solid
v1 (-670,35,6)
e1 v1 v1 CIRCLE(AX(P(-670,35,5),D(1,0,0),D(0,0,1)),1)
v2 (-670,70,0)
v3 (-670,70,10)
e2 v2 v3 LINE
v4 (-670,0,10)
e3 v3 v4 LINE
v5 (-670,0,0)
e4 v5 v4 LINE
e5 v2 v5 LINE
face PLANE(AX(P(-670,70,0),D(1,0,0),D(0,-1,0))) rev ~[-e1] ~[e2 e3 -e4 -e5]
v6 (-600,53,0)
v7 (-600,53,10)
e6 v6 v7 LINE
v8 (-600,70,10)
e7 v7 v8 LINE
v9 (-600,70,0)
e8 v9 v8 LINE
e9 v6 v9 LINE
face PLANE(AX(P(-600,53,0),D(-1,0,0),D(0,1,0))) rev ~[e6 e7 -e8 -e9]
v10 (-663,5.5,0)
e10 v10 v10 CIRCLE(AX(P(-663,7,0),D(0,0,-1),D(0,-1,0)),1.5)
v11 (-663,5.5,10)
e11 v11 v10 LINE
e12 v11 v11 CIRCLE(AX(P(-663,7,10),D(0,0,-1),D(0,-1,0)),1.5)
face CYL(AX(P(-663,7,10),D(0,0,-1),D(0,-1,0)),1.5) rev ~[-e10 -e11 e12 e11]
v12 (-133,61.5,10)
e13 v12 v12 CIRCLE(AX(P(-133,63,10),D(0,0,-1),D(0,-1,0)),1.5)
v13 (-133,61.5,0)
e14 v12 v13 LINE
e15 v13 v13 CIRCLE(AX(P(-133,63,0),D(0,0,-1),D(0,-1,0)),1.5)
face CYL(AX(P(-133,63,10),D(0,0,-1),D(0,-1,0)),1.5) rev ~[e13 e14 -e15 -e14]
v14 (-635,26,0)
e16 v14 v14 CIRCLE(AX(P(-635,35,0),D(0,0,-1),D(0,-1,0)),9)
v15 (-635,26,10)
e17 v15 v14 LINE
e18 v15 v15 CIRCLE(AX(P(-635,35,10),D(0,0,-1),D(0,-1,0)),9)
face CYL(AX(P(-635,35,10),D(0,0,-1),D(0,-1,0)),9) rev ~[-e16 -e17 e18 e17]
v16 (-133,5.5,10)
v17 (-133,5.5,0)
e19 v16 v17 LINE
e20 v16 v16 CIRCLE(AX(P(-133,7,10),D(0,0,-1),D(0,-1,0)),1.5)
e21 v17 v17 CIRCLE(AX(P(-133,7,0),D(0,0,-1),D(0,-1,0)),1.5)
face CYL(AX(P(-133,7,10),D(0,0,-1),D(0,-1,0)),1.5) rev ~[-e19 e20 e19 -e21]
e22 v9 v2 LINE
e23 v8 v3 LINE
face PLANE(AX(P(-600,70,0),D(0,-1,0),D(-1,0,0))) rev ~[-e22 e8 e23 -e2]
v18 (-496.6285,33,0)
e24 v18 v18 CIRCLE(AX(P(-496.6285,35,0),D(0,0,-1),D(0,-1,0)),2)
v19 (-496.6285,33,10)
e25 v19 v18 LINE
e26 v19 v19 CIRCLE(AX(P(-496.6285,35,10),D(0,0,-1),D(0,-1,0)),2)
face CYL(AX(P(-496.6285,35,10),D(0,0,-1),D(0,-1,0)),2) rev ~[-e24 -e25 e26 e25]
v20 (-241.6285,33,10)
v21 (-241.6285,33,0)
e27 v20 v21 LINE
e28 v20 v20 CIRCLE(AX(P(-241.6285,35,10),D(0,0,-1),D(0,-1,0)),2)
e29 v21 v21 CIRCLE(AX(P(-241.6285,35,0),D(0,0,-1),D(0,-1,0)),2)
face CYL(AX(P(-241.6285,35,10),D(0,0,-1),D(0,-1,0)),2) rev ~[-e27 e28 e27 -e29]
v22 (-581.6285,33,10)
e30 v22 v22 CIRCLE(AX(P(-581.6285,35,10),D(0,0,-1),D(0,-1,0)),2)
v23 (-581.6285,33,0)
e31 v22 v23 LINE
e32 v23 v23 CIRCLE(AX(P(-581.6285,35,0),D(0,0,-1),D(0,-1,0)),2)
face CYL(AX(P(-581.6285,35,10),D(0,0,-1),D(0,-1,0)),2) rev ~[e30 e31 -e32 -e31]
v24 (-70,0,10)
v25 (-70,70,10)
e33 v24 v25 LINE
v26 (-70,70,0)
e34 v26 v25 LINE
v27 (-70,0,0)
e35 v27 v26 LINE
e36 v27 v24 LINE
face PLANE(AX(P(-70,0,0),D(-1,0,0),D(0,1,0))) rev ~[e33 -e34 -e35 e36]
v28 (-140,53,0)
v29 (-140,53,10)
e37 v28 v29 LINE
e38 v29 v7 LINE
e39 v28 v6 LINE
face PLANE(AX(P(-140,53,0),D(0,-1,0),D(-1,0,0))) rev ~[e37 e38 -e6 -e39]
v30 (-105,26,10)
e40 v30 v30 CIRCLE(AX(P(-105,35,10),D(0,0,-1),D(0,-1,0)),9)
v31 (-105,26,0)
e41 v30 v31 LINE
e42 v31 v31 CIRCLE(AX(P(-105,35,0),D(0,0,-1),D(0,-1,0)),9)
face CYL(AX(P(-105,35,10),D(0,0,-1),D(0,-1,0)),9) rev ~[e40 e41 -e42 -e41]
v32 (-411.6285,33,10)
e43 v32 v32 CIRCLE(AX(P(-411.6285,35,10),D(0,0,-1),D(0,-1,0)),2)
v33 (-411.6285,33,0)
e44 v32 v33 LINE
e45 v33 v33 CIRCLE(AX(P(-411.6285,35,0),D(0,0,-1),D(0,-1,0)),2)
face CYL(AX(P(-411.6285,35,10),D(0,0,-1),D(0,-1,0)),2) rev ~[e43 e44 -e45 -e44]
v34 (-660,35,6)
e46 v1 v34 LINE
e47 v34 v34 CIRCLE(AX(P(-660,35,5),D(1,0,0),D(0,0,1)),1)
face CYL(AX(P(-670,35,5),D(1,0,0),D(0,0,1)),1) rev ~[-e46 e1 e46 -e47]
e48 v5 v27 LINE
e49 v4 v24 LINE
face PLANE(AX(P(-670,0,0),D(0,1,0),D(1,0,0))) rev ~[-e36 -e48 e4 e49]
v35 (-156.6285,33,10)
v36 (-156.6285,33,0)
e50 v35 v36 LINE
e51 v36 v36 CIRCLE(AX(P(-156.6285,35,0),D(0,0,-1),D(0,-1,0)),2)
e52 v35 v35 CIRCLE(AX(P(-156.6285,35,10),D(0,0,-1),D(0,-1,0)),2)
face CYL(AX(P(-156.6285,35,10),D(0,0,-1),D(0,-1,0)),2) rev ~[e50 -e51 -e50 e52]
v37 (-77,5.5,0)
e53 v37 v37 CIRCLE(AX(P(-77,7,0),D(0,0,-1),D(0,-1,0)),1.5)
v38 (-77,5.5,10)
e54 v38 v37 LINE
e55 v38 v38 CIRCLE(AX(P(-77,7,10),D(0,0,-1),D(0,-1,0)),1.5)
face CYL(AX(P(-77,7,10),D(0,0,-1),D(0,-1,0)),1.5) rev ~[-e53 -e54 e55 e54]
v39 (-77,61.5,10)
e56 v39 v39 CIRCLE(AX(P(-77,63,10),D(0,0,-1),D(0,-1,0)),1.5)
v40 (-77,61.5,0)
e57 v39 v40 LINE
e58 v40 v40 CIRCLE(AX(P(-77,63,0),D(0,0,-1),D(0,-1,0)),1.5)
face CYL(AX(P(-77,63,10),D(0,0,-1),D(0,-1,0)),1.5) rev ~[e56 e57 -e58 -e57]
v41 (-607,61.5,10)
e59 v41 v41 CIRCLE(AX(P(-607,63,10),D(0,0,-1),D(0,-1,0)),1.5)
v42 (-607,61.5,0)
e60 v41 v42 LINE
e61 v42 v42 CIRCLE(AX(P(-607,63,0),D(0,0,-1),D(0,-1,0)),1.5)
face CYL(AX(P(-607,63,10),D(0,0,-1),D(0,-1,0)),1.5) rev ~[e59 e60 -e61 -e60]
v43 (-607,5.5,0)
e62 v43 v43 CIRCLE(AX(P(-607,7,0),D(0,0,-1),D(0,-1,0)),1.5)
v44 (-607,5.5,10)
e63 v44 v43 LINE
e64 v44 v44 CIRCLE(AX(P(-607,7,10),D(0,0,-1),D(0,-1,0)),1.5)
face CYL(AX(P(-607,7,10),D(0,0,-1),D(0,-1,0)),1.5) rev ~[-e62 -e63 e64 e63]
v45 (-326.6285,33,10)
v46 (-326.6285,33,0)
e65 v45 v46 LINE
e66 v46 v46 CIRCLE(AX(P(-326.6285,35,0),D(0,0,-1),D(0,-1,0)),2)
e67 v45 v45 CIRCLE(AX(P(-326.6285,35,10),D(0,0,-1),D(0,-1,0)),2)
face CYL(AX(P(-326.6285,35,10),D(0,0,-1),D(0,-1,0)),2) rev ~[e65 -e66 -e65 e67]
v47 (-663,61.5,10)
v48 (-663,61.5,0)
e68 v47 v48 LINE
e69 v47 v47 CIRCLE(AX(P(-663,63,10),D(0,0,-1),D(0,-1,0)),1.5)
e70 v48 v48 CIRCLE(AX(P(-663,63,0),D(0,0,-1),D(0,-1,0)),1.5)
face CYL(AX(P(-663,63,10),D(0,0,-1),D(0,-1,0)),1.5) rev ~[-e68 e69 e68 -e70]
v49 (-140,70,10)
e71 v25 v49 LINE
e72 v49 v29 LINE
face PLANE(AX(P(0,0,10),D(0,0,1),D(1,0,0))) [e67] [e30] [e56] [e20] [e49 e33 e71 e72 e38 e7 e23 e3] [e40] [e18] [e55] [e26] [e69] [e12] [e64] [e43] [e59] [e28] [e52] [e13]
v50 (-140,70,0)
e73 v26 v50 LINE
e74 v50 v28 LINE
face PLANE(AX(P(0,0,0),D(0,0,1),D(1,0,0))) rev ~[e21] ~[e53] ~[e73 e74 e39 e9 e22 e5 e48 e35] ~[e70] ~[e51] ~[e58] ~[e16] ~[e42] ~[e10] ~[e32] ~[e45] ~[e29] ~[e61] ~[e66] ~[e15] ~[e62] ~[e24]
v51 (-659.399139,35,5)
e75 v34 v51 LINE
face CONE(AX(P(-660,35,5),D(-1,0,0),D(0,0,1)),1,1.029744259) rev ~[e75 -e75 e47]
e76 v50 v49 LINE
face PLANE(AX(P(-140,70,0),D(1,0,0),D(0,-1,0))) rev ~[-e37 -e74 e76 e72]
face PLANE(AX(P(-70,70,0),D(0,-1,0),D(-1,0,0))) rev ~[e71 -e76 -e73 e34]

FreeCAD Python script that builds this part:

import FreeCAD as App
import Part
import Sketcher
Q = App.Units.Quantity


def add_polygon(sketch, points):
    """Adds a closed chain of lines whose ends are joined by coincident constraints."""
    first, n = sketch.GeometryCount, len(points)
    for a, b in zip(points, points[1:] + points[:1]):
        sketch.addGeometry(Part.LineSegment(App.Vector(*a, 0), App.Vector(*b, 0)), False)
    for i in range(n):
        sketch.addConstraint(Sketcher.Constraint("Coincident", first + i, 2, first + (i + 1) % n, 1))

doc = App.newDocument("Part")
body = doc.addObject("PartDesign::Body", "Body")

sketch1 = body.newObject("Sketcher::SketchObject", "Sketch")
sketch1.AttachmentSupport = (doc.getObject("XY_Plane"), [""])
sketch1.MapMode = "FlatFace"
add_polygon(sketch1, [(-670, 0), (-70, 0), (-70, 70), (-140, 70), (-140, 53), (-600, 53), (-600, 70), (-670, 70)])
sketch1.addConstraint([
    Sketcher.Constraint("Horizontal", 0),
    Sketcher.Constraint("Vertical", 1),
    Sketcher.Constraint("Horizontal", 2),
    Sketcher.Constraint("Vertical", 3),
    Sketcher.Constraint("Horizontal", 4),
    Sketcher.Constraint("Vertical", 5),
    Sketcher.Constraint("Horizontal", 6),
    Sketcher.Constraint("Vertical", 7),
    Sketcher.Constraint("PointOnObject", 0, 2, -1),
    Sketcher.Constraint("Horizontal", 2, 2, 5, 2),
    Sketcher.Constraint("Equal", 2, 6),
    Sketcher.Constraint("Equal", 6, 1),
    Sketcher.Constraint("DistanceX", 0, 1, 0, 2, Q("600 mm")),
    Sketcher.Constraint("DistanceX", 2, 2, 2, 1, Q("70 mm")),
    Sketcher.Constraint("DistanceY", 3, 2, 3, 1, Q("17 mm")),
    Sketcher.Constraint("DistanceX", 0, 2, -1, 1, Q("70 mm")),
])
pad1 = body.newObject("PartDesign::Pad", "Pad")
pad1.Profile = sketch1
pad1.Length = 10

sketch2 = body.newObject("Sketcher::SketchObject", "Sketch001")
sketch2.AttachmentSupport = (doc.getObject("XY_Plane"), [""])
sketch2.MapMode = "FlatFace"
sketch2.AttachmentOffset = App.Placement(App.Vector(0, 0, 10), App.Rotation())
sketch2.addGeometry([
    Part.Circle(App.Vector(-105, 35, 0), App.Vector(0, 0, 1), 9),
    Part.Circle(App.Vector(-635, 35, 0), App.Vector(0, 0, 1), 9),
], False)
sketch2.addConstraint([
    Sketcher.Constraint("Equal", 0, 1),
    Sketcher.Constraint("Horizontal", 0, 3, 1, 3),
    Sketcher.Constraint("Diameter", 0, Q("18 mm")),
    Sketcher.Constraint("DistanceX", 0, 3, -1, 1, Q("105 mm")),
    Sketcher.Constraint("DistanceY", -1, 1, 0, 3, Q("35 mm")),
    Sketcher.Constraint("DistanceX", 1, 3, -1, 1, Q("635 mm")),
])
doc.recompute()
hole = body.newObject("PartDesign::Hole", "Hole")
hole.Profile = sketch2
hole.ThreadType = "None"
hole.Diameter = 18
hole.DepthType = "ThroughAll"

sketch3 = body.newObject("Sketcher::SketchObject", "Sketch002")
sketch3.AttachmentSupport = (doc.getObject("XY_Plane"), [""])
sketch3.MapMode = "FlatFace"
sketch3.AttachmentOffset = App.Placement(App.Vector(0, 0, 10), App.Rotation())
sketch3.addGeometry([
    Part.Circle(App.Vector(-77, 63, 0), App.Vector(0, 0, 1), 1.5),
    Part.Circle(App.Vector(-77, 7, 0), App.Vector(0, 0, 1), 1.5),
    Part.Circle(App.Vector(-133, 63, 0), App.Vector(0, 0, 1), 1.5),
    Part.Circle(App.Vector(7, -7, 0), App.Vector(0, 0, 1), 1.5),
], False)
sketch3.addConstraint([
    Sketcher.Constraint("Equal", 0, 1),
    Sketcher.Constraint("Equal", 1, 2),
    Sketcher.Constraint("Equal", 2, 3),
    Sketcher.Constraint("Horizontal", 0, 3, 2, 3),
    Sketcher.Constraint("Vertical", 0, 3, 1, 3),
    Sketcher.Constraint("Diameter", 0, Q("3 mm")),
    Sketcher.Constraint("DistanceX", 0, 3, -1, 1, Q("77 mm")),
    Sketcher.Constraint("DistanceY", -1, 1, 0, 3, Q("63 mm")),
    Sketcher.Constraint("DistanceY", -1, 1, 1, 3, Q("7 mm")),
    Sketcher.Constraint("DistanceX", 2, 3, -1, 1, Q("133 mm")),
    Sketcher.Constraint("DistanceX", -1, 1, 3, 3, Q("7 mm")),
    Sketcher.Constraint("DistanceY", 3, 3, -1, 1, Q("7 mm")),
])
doc.recompute()
hole2 = body.newObject("PartDesign::Hole", "Hole001")
hole2.Profile = sketch3
hole2.ThreadType = "None"
hole2.Diameter = 3
hole2.DepthType = "ThroughAll"

sketch4 = body.newObject("Sketcher::SketchObject", "Sketch003")
sketch4.AttachmentSupport = (doc.getObject("XY_Plane"), [""])
sketch4.MapMode = "FlatFace"
sketch4.AttachmentOffset = App.Placement(App.Vector(0, 0, 10), App.Rotation())
sketch4.addGeometry(Part.Circle(App.Vector(-133, 7, 0), App.Vector(0, 0, 1), 1.5), False)
sketch4.addConstraint([
    Sketcher.Constraint("Diameter", 0, Q("3 mm")),
    Sketcher.Constraint("DistanceX", 0, 3, -1, 1, Q("133 mm")),
    Sketcher.Constraint("DistanceY", -1, 1, 0, 3, Q("7 mm")),
])
doc.recompute()
hole3 = body.newObject("PartDesign::Hole", "Hole002")
hole3.Profile = sketch4
hole3.ThreadType = "None"
hole3.Diameter = 3
hole3.DepthType = "ThroughAll"

sketch5 = body.newObject("Sketcher::SketchObject", "Sketch004")
sketch5.AttachmentSupport = (doc.getObject("XY_Plane"), [""])
sketch5.MapMode = "FlatFace"
sketch5.AttachmentOffset = App.Placement(App.Vector(0, 0, 10), App.Rotation())
sketch5.addGeometry([
    Part.Circle(App.Vector(-663, 63, 0), App.Vector(0, 0, 1), 1.5),
    Part.Circle(App.Vector(-663, 7, 0), App.Vector(0, 0, 1), 1.5),
    Part.Circle(App.Vector(-607, 63, 0), App.Vector(0, 0, 1), 1.5),
    Part.Circle(App.Vector(-607, 7, 0), App.Vector(0, 0, 1), 1.5),
], False)
sketch5.addConstraint([
    Sketcher.Constraint("Equal", 0, 1),
    Sketcher.Constraint("Equal", 1, 2),
    Sketcher.Constraint("Equal", 2, 3),
    Sketcher.Constraint("Horizontal", 0, 3, 2, 3),
    Sketcher.Constraint("Horizontal", 1, 3, 3, 3),
    Sketcher.Constraint("Vertical", 0, 3, 1, 3),
    Sketcher.Constraint("Vertical", 2, 3, 3, 3),
    Sketcher.Constraint("Diameter", 0, Q("3 mm")),
    Sketcher.Constraint("DistanceX", 0, 3, -1, 1, Q("663 mm")),
    Sketcher.Constraint("DistanceY", -1, 1, 0, 3, Q("63 mm")),
    Sketcher.Constraint("DistanceY", -1, 1, 1, 3, Q("7 mm")),
    Sketcher.Constraint("DistanceX", 2, 3, -1, 1, Q("607 mm")),
])
doc.recompute()
hole4 = body.newObject("PartDesign::Hole", "Hole003")
hole4.Profile = sketch5
hole4.ThreadType = "None"
hole4.Diameter = 3
hole4.DepthType = "ThroughAll"

sketch6 = body.newObject("Sketcher::SketchObject", "Sketch005")
sketch6.AttachmentSupport = (doc.getObject("XY_Plane"), [""])
sketch6.MapMode = "FlatFace"
sketch6.AttachmentOffset = App.Placement(App.Vector(0, 0, 10), App.Rotation())
sketch6.addGeometry(Part.Circle(App.Vector(-581.6, 35, 0), App.Vector(0, 0, 1), 2), False)
sketch6.addConstraint([
    Sketcher.Constraint("Diameter", 0, Q("4 mm")),
    Sketcher.Constraint("DistanceY", -1, 1, 0, 3, Q("35 mm")),
    Sketcher.Constraint("DistanceX", 0, 3, -1, 1, Q("581.6285 mm")),
])
doc.recompute()
hole5 = body.newObject("PartDesign::Hole", "Hole004")
hole5.Profile = sketch6
hole5.ThreadType = "None"
hole5.Diameter = 4
hole5.DepthType = "ThroughAll"
doc.recompute()

linearpattern = body.newObject("PartDesign::LinearPattern", "LinearPattern")
linearpattern.Originals = [hole5]
linearpattern.Direction = (doc.getObject("X_Axis"), [""])
linearpattern.Mode = "offset"
linearpattern.Offset = 85
linearpattern.Occurrences = 6
body.Tip = linearpattern

sketch7 = body.newObject("Sketcher::SketchObject", "Sketch006")
sketch7.AttachmentSupport = (doc.getObject("YZ_Plane"), [""])
sketch7.MapMode = "FlatFace"
sketch7.AttachmentOffset = App.Placement(App.Vector(0, 0, -670), App.Rotation())
sketch7.addGeometry(Part.Circle(App.Vector(35, 5, 0), App.Vector(0, 0, 1), 1), False)
sketch7.addConstraint([
    Sketcher.Constraint("Diameter", 0, Q("2 mm")),
    Sketcher.Constraint("DistanceX", -1, 1, 0, 3, Q("35 mm")),
    Sketcher.Constraint("DistanceY", -1, 1, 0, 3, Q("5 mm")),
])
doc.recompute()
hole6 = body.newObject("PartDesign::Hole", "Hole005")
hole6.Profile = sketch7
hole6.ThreadType = "None"
hole6.Diameter = 2
hole6.DepthType = "Dimension"
hole6.Depth = 10
hole6.DrillPoint = "Angled"
hole6.DrillPointAngle = 118
hole6.Reversed = True

doc.recompute()
